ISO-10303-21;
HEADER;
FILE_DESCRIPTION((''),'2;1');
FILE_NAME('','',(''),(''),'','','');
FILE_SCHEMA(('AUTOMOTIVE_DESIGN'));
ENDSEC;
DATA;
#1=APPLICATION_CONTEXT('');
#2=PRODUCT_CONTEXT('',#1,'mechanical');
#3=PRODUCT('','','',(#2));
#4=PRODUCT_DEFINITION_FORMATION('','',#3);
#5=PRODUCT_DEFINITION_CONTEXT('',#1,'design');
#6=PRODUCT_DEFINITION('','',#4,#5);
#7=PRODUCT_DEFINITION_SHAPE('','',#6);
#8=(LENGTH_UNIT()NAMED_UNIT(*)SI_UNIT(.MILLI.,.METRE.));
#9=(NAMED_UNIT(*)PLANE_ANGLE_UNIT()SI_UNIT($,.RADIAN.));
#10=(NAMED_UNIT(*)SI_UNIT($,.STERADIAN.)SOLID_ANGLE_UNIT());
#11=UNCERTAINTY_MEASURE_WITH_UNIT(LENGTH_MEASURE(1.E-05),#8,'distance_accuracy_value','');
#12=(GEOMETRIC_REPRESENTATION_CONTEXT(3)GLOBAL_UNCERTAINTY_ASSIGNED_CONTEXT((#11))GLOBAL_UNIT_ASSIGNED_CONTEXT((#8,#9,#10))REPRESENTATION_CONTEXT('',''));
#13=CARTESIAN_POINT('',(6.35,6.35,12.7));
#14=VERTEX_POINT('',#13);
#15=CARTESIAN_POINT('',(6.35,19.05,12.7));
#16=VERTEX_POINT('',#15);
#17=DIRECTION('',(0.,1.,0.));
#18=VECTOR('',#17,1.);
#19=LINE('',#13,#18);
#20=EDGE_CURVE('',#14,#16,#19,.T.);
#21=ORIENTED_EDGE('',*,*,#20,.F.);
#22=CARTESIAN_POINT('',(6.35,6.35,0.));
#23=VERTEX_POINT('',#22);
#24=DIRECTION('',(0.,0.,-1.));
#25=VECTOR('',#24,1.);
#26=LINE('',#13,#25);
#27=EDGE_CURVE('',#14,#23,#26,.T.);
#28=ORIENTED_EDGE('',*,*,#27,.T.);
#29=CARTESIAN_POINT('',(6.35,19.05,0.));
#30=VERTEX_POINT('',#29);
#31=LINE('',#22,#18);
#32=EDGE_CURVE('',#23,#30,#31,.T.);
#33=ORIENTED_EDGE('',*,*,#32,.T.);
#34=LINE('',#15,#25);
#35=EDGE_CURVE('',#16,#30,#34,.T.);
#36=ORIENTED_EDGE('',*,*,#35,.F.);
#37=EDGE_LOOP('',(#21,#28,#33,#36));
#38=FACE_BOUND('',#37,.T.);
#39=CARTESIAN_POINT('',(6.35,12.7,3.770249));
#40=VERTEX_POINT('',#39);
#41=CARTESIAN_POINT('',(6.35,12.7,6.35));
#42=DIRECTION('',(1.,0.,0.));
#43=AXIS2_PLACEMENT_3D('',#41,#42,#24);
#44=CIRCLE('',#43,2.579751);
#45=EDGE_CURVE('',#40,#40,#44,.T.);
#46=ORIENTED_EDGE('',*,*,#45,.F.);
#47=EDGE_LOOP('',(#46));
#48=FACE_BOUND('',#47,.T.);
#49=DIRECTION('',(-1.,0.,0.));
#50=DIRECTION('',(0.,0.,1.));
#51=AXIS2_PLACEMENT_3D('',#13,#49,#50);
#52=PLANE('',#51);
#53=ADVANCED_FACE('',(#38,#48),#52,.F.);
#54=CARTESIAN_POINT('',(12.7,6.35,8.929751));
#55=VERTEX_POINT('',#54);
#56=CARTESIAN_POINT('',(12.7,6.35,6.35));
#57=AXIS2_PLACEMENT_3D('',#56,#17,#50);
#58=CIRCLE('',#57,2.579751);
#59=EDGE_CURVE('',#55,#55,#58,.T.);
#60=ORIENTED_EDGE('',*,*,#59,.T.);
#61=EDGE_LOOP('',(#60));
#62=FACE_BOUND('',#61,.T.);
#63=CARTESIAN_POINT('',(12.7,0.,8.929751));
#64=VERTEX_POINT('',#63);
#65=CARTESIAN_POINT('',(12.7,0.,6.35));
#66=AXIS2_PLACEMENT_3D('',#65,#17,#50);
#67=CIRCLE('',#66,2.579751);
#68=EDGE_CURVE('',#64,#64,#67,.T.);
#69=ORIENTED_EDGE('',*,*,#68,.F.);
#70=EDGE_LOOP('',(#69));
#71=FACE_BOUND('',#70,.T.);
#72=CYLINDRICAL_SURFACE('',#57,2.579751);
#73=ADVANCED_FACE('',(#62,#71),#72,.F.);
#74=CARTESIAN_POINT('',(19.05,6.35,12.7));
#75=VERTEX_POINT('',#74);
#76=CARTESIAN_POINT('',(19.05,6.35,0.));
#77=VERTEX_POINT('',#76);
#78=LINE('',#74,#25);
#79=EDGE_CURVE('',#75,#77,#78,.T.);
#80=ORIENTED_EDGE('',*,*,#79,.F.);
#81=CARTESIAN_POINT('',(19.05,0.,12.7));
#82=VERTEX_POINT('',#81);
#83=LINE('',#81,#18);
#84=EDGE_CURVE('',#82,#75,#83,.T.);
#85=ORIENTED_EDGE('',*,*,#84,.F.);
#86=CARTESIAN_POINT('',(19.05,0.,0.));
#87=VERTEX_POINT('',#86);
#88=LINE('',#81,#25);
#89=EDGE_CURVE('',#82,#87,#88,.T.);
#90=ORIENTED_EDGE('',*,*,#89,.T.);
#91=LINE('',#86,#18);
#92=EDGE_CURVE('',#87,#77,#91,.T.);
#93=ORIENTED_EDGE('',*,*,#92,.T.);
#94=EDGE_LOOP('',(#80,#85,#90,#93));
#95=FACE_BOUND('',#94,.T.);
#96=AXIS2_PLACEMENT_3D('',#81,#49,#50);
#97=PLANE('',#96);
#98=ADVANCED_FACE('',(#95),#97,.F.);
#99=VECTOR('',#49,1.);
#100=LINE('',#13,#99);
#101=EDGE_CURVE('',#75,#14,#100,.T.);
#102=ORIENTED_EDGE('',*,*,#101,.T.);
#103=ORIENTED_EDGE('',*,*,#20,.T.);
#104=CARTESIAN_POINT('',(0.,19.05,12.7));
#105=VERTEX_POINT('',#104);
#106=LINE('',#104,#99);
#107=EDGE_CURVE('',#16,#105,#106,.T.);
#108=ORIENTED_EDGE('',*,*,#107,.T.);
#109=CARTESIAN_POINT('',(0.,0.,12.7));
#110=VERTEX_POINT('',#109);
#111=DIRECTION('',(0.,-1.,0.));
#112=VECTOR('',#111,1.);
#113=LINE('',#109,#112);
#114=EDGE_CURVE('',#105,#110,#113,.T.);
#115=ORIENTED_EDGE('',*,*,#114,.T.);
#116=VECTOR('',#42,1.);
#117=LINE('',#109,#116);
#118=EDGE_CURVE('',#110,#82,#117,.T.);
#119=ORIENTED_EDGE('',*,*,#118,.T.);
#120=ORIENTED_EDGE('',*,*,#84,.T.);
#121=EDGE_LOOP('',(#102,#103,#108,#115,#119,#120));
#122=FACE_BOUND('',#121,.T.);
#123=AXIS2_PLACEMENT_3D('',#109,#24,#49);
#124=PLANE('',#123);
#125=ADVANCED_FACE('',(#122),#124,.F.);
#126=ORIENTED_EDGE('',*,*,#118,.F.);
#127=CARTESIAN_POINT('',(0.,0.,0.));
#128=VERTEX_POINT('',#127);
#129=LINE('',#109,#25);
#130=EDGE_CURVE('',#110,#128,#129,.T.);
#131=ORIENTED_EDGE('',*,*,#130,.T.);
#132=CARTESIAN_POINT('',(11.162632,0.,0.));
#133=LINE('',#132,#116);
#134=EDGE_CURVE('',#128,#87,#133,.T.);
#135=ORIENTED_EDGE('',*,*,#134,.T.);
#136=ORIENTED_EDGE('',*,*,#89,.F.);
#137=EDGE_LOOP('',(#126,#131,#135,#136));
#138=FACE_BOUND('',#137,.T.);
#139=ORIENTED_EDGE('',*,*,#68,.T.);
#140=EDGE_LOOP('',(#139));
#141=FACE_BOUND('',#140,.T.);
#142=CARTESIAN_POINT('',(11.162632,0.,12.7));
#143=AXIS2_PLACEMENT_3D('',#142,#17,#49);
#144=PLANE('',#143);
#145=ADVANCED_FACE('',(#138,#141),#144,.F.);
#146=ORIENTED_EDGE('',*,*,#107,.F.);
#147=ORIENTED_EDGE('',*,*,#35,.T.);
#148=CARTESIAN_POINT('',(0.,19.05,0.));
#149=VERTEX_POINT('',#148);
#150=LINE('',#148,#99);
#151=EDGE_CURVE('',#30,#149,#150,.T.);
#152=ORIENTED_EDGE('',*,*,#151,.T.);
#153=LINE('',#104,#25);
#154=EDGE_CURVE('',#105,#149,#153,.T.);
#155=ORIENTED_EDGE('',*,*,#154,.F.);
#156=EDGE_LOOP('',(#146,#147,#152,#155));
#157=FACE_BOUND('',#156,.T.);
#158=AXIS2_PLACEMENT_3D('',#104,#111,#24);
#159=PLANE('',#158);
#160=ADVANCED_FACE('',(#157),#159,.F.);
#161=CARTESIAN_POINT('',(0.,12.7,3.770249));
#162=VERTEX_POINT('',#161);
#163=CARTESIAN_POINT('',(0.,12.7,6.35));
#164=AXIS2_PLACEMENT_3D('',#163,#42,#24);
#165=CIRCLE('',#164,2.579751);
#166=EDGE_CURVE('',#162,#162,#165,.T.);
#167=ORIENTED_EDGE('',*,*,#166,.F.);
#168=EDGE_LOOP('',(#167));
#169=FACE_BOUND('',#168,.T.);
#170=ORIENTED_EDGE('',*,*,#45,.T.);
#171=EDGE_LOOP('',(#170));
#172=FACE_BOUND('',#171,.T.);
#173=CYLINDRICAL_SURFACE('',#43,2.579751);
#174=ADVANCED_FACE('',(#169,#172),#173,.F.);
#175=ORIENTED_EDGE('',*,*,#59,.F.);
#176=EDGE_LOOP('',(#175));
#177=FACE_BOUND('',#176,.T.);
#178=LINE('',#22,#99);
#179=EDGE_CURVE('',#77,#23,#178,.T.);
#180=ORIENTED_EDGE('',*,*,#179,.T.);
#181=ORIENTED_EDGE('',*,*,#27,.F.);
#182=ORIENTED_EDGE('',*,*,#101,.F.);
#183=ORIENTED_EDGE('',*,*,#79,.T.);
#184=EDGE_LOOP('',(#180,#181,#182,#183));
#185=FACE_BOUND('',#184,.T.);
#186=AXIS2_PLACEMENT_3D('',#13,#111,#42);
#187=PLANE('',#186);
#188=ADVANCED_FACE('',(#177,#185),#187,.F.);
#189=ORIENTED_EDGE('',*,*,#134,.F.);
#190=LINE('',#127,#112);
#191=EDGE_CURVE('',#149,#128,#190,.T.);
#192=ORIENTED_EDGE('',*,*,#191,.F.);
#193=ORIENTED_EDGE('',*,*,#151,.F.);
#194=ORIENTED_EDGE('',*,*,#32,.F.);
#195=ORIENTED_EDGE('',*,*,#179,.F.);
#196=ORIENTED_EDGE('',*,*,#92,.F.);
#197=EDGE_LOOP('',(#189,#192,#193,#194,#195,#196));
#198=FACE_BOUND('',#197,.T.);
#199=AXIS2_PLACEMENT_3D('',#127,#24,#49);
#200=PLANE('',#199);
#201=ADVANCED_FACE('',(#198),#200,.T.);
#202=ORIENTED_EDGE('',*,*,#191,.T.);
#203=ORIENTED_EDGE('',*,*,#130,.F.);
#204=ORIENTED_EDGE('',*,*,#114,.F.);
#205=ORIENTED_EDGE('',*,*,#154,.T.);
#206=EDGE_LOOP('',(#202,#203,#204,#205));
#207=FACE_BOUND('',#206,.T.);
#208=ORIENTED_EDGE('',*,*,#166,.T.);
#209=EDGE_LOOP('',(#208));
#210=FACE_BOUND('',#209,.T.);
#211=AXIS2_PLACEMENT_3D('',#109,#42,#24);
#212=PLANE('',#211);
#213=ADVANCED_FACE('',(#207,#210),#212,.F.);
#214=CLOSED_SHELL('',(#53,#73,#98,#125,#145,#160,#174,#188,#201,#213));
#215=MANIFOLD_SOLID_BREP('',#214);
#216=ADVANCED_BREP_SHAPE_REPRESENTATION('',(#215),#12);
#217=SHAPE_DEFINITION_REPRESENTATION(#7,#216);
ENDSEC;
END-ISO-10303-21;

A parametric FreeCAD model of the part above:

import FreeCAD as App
import Part
import Sketcher
Q = App.Units.Quantity

doc = App.newDocument("Part")
body = doc.addObject("PartDesign::Body", "Body")

# Sketch on XY plane
sketch1 = body.newObject("Sketcher::SketchObject", "Sketch")
sketch1.AttachmentSupport = (doc.getObject("XY_Plane"), [""])
sketch1.MapMode = "FlatFace"
sketch1.addGeometry([
    Part.LineSegment(App.Vector(0, 0, 0), App.Vector(19.05, 0, 0)),  # 0
    Part.LineSegment(App.Vector(19.05, 0, 0), App.Vector(19.05, 6.35, 0)),  # 1
    Part.LineSegment(App.Vector(19.05, 6.35, 0), App.Vector(6.35, 6.35, 0)),  # 2
    Part.LineSegment(App.Vector(6.35, 6.35, 0), App.Vector(6.35, 19.05, 0)),  # 3
    Part.LineSegment(App.Vector(6.35, 19.05, 0), App.Vector(0, 19.05, 0)),  # 4
    Part.LineSegment(App.Vector(0, 19.05, 0), App.Vector(0, 0, 0)),  # 5
], False)
sketch1.addConstraint([
    Sketcher.Constraint("Coincident", 0, 2, 1, 1),
    Sketcher.Constraint("Coincident", 1, 2, 2, 1),
    Sketcher.Constraint("Coincident", 2, 2, 3, 1),
    Sketcher.Constraint("Coincident", 3, 2, 4, 1),
    Sketcher.Constraint("Coincident", 4, 2, 5, 1),
    Sketcher.Constraint("Coincident", 5, 2, 0, 1),
    Sketcher.Constraint("Horizontal", 0),
    Sketcher.Constraint("Vertical", 1),
    Sketcher.Constraint("Horizontal", 2),
    Sketcher.Constraint("Vertical", 3),
    Sketcher.Constraint("Horizontal", 4),
    Sketcher.Constraint("Vertical", 5),
    Sketcher.Constraint("Coincident", 5, 2, -1, 1),
    Sketcher.Constraint("Equal", 4, 1),
    Sketcher.Constraint("Equal", 2, 3),
    Sketcher.Constraint("DistanceX", 2, 2, 2, 1, Q("0.5 in")),
    Sketcher.Constraint("DistanceX", 0, 1, 0, 2, Q("0.75 in")),
])
pad1 = body.newObject("PartDesign::Pad", "Pad")
pad1.Profile = sketch1
pad1.Length = Q("0.5 in")

# Sketch on YZ plane
sketch2 = body.newObject("Sketcher::SketchObject", "Sketch001")
sketch2.AttachmentSupport = (doc.getObject("YZ_Plane"), [""])
sketch2.MapMode = "FlatFace"
sketch2.AttachmentOffset = App.Placement(App.Vector(0, 0, 0.25 * 25.4), App.Rotation())
sketch2.addGeometry(Part.Circle(App.Vector(12.7, 6.35, 0), App.Vector(0, 0, 1), 2.579751), False)
sketch2.addConstraint([
    Sketcher.Constraint("DistanceX", -1, 1, 0, 3, Q("0.5 in")),
    Sketcher.Constraint("Diameter", 0, 5.159502),
    Sketcher.Constraint("DistanceY", -1, 1, 0, 3, Q("0.25 in")),
])
doc.recompute()
hole = body.newObject("PartDesign::Hole", "Hole")
hole.Profile = sketch2
hole.ThreadType = "None"
hole.Diameter = 5.159502
hole.DepthType = "ThroughAll"

# Sketch on XZ plane
sketch3 = body.newObject("Sketcher::SketchObject", "Sketch002")
sketch3.AttachmentSupport = (doc.getObject("XZ_Plane"), [""])
sketch3.MapMode = "FlatFace"
sketch3.AttachmentOffset = App.Placement(App.Vector(0, 0, -0.25 * 25.4), App.Rotation())
sketch3.addGeometry(Part.Circle(App.Vector(12.7, 6.35, 0), App.Vector(0, 0, 1), 2.579751), False)
sketch3.addConstraint([
    Sketcher.Constraint("DistanceX", -1, 1, 0, 3, Q("0.5 in")),
    Sketcher.Constraint("Diameter", 0, 5.159502),
    Sketcher.Constraint("DistanceY", -1, 1, 0, 3, Q("0.25 in")),
])
doc.recompute()
hole2 = body.newObject("PartDesign::Hole", "Hole001")
hole2.Profile = sketch3
hole2.ThreadType = "None"
hole2.Diameter = 5.159502
hole2.DepthType = "ThroughAll"
hole2.Reversed = True

doc.recompute()
